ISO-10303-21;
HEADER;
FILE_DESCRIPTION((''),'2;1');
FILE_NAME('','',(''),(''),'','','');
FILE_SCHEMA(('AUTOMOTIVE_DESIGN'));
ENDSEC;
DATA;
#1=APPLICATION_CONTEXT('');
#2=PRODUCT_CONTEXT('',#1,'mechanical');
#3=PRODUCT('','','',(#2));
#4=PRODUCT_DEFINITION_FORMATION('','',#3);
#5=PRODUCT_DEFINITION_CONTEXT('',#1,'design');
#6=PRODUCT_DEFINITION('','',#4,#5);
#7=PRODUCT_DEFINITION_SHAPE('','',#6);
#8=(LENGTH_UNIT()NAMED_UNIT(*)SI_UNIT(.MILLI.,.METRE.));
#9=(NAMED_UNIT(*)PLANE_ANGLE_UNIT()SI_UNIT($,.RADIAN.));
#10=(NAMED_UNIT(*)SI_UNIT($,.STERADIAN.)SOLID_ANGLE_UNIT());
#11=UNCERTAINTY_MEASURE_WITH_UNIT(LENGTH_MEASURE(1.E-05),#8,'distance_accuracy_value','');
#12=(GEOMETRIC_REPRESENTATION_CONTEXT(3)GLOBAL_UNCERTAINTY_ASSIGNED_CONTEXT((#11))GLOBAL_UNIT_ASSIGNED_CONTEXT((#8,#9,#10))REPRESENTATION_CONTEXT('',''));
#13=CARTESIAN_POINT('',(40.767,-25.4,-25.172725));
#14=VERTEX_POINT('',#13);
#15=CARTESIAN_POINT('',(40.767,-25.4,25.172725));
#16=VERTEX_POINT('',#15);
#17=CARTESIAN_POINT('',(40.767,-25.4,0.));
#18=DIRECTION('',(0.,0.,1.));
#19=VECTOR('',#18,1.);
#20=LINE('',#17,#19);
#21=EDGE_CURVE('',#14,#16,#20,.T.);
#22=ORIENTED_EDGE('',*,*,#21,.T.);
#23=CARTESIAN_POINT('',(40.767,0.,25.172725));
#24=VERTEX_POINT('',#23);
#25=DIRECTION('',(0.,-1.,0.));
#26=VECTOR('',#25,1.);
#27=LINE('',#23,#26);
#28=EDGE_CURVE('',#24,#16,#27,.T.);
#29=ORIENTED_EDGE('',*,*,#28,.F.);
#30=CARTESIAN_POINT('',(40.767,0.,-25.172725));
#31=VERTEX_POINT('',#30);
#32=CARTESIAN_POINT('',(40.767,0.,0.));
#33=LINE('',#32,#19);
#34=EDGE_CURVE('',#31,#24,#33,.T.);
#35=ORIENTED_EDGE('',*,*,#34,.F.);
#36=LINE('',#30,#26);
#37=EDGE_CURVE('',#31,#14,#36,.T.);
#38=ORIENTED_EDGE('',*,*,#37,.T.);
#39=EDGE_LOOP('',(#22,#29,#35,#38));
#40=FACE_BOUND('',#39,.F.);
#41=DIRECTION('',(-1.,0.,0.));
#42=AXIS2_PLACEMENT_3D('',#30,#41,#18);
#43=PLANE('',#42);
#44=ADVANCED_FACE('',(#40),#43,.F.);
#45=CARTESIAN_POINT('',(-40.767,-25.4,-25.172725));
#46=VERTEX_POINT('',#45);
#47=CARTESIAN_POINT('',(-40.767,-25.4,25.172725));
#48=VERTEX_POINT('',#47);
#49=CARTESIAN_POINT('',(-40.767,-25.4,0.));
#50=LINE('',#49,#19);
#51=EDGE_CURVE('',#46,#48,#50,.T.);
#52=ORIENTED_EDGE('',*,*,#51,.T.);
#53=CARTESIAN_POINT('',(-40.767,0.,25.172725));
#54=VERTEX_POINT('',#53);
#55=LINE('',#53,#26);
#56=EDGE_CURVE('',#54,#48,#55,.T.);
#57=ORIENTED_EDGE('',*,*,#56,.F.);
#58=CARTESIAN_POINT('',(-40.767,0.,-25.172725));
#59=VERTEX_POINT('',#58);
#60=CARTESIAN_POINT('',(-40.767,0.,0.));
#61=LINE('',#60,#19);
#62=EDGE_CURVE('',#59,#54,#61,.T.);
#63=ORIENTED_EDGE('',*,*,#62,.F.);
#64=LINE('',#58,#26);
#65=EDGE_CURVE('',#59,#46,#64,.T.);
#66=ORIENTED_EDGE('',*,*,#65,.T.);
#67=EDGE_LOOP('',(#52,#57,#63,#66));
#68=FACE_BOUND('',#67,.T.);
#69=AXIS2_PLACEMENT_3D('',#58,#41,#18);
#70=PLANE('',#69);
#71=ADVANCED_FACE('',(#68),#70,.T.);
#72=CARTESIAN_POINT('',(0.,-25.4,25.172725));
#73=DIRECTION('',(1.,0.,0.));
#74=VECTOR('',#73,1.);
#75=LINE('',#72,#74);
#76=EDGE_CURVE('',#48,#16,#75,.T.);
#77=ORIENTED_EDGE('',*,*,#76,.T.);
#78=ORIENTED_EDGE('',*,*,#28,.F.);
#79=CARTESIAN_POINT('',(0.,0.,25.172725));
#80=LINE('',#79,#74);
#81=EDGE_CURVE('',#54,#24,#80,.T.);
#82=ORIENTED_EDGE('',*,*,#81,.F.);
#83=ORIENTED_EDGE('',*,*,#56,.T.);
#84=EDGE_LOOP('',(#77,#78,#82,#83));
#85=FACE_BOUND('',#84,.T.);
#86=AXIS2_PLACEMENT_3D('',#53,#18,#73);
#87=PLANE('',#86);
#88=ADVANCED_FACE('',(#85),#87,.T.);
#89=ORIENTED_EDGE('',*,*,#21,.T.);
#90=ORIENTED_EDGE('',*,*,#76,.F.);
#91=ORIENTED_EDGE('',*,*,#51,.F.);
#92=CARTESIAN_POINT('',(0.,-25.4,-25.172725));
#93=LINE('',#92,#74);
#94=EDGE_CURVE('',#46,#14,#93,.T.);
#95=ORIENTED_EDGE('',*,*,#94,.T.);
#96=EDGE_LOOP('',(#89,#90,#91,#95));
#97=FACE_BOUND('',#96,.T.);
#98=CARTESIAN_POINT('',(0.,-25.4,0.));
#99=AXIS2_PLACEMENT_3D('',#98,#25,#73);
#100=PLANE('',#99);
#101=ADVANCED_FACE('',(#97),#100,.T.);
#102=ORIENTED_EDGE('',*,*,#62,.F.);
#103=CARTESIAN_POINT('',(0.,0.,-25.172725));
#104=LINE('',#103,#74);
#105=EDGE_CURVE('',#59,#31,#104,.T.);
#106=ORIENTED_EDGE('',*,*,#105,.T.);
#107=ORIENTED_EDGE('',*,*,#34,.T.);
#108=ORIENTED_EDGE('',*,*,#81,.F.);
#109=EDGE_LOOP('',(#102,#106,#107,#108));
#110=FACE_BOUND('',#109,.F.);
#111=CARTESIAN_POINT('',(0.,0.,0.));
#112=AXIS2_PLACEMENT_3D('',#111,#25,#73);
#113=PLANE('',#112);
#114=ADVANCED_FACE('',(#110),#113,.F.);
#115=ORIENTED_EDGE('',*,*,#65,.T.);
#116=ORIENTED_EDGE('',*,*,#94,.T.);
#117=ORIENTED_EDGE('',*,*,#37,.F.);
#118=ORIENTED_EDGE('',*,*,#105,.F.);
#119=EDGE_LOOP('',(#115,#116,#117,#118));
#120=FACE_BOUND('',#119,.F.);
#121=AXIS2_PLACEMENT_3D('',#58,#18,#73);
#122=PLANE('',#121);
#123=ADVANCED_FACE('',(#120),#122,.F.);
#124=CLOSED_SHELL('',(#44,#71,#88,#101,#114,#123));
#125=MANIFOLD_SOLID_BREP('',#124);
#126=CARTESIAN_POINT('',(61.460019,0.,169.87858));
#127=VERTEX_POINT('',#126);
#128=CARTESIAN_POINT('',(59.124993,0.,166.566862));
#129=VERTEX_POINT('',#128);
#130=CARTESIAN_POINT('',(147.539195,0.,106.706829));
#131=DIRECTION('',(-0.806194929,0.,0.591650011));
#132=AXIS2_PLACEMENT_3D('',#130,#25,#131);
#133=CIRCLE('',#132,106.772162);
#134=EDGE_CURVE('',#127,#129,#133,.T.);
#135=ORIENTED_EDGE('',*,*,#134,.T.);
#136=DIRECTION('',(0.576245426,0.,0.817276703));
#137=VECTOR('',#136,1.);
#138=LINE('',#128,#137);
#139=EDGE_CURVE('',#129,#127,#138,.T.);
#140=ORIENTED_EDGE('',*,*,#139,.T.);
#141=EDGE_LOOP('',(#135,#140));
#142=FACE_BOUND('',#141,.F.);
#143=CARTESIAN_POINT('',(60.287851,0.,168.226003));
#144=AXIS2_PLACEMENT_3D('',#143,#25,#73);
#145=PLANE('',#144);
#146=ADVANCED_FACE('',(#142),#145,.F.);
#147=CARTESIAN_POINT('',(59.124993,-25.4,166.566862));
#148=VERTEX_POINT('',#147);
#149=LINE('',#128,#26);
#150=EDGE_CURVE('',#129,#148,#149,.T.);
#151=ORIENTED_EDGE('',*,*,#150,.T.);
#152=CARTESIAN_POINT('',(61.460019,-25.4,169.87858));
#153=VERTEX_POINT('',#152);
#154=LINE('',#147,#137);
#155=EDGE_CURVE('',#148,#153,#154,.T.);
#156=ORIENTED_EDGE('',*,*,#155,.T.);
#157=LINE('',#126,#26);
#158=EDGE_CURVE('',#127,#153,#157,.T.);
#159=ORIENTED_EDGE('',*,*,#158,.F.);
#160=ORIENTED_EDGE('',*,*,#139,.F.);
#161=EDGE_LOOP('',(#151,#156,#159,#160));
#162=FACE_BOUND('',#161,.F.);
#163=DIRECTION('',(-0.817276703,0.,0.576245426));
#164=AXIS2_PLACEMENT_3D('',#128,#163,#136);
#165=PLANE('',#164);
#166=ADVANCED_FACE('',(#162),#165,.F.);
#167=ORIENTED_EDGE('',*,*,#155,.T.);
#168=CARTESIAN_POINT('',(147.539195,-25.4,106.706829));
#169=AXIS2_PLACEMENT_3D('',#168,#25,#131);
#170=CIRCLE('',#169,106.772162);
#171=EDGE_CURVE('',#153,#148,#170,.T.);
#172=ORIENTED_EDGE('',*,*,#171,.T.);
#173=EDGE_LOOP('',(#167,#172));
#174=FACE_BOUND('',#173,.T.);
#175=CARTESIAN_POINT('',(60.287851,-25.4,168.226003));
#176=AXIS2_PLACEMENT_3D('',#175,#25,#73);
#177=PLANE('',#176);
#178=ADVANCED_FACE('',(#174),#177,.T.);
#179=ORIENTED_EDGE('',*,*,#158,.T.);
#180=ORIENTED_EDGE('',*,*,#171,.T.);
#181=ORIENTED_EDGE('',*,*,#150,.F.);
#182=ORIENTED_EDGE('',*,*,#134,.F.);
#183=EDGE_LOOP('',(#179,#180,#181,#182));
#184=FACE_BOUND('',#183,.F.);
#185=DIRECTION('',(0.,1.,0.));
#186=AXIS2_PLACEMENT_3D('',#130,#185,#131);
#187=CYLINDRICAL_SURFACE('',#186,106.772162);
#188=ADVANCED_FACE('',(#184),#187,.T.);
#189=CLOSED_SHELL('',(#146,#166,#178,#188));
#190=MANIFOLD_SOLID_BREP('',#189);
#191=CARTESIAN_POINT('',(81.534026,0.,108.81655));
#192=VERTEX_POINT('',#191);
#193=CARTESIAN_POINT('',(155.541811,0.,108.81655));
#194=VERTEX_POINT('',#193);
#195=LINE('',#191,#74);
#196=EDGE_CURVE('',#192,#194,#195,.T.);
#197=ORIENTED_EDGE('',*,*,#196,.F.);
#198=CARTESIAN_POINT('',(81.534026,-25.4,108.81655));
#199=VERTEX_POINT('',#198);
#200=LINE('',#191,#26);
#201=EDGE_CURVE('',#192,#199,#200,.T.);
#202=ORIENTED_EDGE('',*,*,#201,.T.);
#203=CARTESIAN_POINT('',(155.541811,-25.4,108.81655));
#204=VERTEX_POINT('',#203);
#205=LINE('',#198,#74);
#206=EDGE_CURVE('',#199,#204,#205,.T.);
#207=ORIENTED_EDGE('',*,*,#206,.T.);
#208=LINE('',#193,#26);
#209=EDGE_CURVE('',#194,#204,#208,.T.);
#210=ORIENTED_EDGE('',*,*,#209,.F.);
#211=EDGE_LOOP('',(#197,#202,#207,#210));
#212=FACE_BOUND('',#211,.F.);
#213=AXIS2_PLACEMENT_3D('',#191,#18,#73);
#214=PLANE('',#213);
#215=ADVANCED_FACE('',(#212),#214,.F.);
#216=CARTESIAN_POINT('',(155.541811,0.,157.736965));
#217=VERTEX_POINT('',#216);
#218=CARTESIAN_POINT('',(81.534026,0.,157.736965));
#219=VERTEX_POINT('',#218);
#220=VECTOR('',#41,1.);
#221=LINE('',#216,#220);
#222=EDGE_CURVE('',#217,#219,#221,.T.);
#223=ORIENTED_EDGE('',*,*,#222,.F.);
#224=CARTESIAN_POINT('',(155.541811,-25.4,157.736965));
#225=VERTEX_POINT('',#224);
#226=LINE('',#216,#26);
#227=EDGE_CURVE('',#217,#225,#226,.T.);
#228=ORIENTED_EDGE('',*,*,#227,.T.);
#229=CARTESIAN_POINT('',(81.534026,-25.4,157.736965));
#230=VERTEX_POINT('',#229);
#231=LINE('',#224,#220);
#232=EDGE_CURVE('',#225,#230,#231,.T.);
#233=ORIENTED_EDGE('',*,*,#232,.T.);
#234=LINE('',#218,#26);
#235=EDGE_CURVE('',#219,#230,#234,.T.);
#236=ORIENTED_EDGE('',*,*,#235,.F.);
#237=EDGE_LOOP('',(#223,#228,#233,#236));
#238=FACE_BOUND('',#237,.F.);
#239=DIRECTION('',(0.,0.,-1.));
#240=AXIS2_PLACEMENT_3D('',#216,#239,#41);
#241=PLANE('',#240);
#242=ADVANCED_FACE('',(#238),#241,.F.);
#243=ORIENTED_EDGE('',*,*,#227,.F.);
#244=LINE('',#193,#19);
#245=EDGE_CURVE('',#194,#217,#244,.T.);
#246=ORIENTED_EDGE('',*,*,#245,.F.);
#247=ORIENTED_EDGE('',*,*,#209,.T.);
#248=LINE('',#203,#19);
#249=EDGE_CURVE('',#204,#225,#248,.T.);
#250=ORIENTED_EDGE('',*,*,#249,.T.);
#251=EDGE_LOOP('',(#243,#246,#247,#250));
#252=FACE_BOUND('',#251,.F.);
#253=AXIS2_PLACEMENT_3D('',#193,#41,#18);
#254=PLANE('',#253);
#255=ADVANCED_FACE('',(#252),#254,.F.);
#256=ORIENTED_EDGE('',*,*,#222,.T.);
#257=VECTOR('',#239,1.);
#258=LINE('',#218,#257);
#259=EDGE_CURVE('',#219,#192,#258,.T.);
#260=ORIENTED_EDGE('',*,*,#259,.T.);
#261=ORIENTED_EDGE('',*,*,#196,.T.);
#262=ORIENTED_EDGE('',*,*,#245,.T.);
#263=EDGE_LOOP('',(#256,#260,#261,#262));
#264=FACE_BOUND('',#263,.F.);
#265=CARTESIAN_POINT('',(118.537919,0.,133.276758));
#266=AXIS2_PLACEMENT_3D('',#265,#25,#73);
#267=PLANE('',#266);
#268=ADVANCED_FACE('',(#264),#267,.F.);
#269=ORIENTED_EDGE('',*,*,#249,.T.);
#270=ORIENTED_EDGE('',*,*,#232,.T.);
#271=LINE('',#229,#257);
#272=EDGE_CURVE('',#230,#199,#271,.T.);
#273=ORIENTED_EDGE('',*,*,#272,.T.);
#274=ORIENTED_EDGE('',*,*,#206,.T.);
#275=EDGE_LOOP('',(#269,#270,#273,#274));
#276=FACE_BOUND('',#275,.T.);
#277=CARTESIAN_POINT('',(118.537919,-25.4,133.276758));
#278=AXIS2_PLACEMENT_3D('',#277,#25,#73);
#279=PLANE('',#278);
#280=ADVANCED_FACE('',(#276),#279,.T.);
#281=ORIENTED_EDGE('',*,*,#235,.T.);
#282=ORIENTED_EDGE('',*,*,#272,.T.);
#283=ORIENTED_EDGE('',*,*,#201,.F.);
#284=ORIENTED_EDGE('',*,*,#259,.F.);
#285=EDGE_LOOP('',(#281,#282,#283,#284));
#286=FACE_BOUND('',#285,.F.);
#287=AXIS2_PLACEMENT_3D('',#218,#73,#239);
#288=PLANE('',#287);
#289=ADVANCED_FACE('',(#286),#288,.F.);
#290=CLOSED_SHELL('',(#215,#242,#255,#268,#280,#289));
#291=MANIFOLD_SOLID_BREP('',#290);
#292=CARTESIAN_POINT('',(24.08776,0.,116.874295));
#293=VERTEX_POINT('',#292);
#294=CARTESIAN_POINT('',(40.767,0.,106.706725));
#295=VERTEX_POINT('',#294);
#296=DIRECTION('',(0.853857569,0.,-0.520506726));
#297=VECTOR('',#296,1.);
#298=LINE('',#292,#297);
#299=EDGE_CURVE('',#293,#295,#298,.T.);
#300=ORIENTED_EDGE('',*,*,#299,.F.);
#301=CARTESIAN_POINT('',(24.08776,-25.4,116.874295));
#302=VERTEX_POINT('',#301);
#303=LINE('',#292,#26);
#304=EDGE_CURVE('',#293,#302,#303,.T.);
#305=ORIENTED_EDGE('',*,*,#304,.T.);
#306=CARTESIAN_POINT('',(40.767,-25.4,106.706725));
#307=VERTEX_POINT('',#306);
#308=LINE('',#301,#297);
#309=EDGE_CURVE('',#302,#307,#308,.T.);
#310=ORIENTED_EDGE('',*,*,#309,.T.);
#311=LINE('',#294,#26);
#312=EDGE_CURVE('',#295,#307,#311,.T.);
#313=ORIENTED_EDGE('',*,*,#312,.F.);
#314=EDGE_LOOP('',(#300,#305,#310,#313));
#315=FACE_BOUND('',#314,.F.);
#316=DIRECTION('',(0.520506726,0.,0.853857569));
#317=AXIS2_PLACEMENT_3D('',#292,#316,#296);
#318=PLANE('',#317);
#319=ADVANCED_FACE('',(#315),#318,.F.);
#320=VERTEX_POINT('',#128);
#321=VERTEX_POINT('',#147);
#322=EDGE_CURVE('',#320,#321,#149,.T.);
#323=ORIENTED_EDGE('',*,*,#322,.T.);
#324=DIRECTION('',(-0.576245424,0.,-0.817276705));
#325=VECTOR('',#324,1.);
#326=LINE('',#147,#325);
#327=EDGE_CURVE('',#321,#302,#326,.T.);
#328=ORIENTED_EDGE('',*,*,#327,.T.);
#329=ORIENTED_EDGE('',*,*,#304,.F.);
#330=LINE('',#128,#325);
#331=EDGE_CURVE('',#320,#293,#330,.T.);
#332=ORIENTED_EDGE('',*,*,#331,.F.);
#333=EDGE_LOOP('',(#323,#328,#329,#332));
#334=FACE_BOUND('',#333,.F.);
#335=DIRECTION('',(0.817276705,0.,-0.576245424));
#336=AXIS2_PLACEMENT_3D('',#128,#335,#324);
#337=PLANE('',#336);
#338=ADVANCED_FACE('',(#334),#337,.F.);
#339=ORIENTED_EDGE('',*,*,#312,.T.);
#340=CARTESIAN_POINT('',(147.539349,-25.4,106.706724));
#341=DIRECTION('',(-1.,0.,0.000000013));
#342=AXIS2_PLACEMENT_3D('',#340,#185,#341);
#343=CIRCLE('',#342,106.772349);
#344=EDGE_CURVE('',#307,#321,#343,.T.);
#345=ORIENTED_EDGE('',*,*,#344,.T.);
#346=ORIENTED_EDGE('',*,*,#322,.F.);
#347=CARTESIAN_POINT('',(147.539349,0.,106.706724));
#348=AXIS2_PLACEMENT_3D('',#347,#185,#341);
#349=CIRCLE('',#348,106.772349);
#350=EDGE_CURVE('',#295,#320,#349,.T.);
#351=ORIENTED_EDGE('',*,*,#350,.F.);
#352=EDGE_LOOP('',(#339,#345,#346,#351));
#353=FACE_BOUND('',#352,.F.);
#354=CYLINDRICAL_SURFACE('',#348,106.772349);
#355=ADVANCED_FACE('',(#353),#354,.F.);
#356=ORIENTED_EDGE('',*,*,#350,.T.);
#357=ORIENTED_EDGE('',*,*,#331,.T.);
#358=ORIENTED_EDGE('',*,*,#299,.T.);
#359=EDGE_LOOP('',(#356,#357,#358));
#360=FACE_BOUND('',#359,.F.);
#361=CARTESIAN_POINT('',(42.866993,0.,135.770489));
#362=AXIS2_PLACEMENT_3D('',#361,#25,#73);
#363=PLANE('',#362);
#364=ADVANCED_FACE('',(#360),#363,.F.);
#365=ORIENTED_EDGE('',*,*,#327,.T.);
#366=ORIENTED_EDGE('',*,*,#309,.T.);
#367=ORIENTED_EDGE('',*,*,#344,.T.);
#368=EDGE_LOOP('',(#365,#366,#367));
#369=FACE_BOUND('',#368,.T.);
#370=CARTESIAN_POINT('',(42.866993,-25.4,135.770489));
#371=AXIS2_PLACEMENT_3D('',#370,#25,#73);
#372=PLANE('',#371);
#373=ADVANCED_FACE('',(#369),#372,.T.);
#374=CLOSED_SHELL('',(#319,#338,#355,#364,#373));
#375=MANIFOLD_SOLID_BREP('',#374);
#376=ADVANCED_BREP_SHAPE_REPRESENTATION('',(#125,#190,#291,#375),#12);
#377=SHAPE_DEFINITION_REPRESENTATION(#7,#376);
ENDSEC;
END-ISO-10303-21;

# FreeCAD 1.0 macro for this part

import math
import FreeCAD as App
import Part
import Sketcher
Q = App.Units.Quantity


def add_polygon(sketch, points):
    """Adds a closed chain of lines whose ends are joined by coincident constraints."""
    first, n = sketch.GeometryCount, len(points)
    for a, b in zip(points, points[1:] + points[:1]):
        sketch.addGeometry(Part.LineSegment(App.Vector(*a, 0), App.Vector(*b, 0)), False)
    for i in range(n):
        sketch.addConstraint(Sketcher.Constraint("Coincident", first + i, 2, first + (i + 1) % n, 1))

doc = App.newDocument("Part")
body = doc.addObject("PartDesign::Body", "Body")
body.AllowCompound = True

# Sketch on XZ plane
sketch1 = doc.addObject("Sketcher::SketchObject", "Sketch")
body.addObject(sketch1)
sketch1.AttachmentSupport = (doc.XZ_Plane, [""])
sketch1.MapMode = "FlatFace"
add_polygon(sketch1, [(155.5, 157.7), (81.5, 157.7), (81.5, 108.8), (155.5, 108.8)])  # lines 0-3
sketch1.addGeometry(Part.ArcOfCircle(Part.Circle(App.Vector(147.5, 106.7, 0), App.Vector(0, 0, 1), 106.8), math.radians(143.73), math.radians(145.9)), False)  # 4
sketch1.addGeometry(Part.LineSegment(App.Vector(59.1, 166.6, 0), App.Vector(61.5, 169.9, 0)), False)  # 5
sketch1.addGeometry(Part.LineSegment(App.Vector(24.1, 116.9, 0), App.Vector(40.8, 106.7, 0)), False)  # 6
sketch1.addGeometry(Part.ArcOfCircle(Part.Circle(App.Vector(147.5, 106.7, 0), App.Vector(0, 0, 1), 106.8), math.radians(146), math.radians(180)), False)  # 7
sketch1.addGeometry(Part.LineSegment(App.Vector(59.1, 166.6, 0), App.Vector(24.1, 116.9, 0)), False)  # 8
add_polygon(sketch1, [(-40.8, 25.2), (-40.8, -25.2), (40.8, -25.2), (40.8, 25.2)])  # lines 9-12
sketch1.addConstraint(Sketcher.Constraint("Coincident", 4, 1, 5, 2))
sketch1.addConstraint(Sketcher.Constraint("Coincident", 5, 1, 4, 2))
sketch1.addConstraint(Sketcher.Constraint("Coincident", 6, 2, 7, 2))
sketch1.addConstraint(Sketcher.Constraint("Coincident", 7, 1, 8, 1))
sketch1.addConstraint(Sketcher.Constraint("Coincident", 8, 2, 6, 1))
sketch1.addConstraint(Sketcher.Constraint("Horizontal", 0))
sketch1.addConstraint(Sketcher.Constraint("Vertical", 1))
sketch1.addConstraint(Sketcher.Constraint("Horizontal", 2))
sketch1.addConstraint(Sketcher.Constraint("Vertical", 3))
sketch1.addConstraint(Sketcher.Constraint("Vertical", 9))
sketch1.addConstraint(Sketcher.Constraint("Horizontal", 10))
sketch1.addConstraint(Sketcher.Constraint("Vertical", 11))
sketch1.addConstraint(Sketcher.Constraint("Horizontal", 12))
sketch1.addConstraint(Sketcher.Constraint("Coincident", 7, 1, 5, 1))
sketch1.addConstraint(Sketcher.Constraint("Symmetric", 9, 2, 11, 2, -1, 1))
sketch1.addConstraint(Sketcher.Constraint("Parallel", 5, 8))
sketch1.addConstraint(Sketcher.Constraint("Horizontal", 7, 3, 6, 2))
sketch1.addConstraint(Sketcher.Constraint("Vertical", 6, 2, 10, 2))
sketch1.addConstraint(Sketcher.Constraint("DistanceX", 10, 1, 10, 2, Q("3.21 in")))
sketch1.addConstraint(Sketcher.Constraint("DistanceY", 11, 2, 6, 2, Q("3.21 in")))
sketch1.addConstraint(Sketcher.Constraint("Radius", 7, Q("106.772349 mm")))
sketch1.addConstraint(Sketcher.Constraint("Radius", 4, Q("106.772162 mm")))
sketch1.addConstraint(Sketcher.Constraint("DistanceY", 9, 2, 9, 1, Q("50.34545 mm")))
sketch1.addConstraint(Sketcher.Constraint("DistanceX", 5, 1, 4, 3, Q("88.414202 mm")))
sketch1.addConstraint(Sketcher.Constraint("Distance", 5, Q("4.052138 mm")))
sketch1.addConstraint(Sketcher.Constraint("DistanceX", 0, 2, 0, 1, Q("74.007785 mm")))
sketch1.addConstraint(Sketcher.Constraint("DistanceY", 1, 2, 1, 1, Q("48.920415 mm")))
sketch1.addConstraint(Sketcher.Constraint("DistanceY", -1, 1, 4, 3, Q("106.706829 mm")))
sketch1.addConstraint(Sketcher.Constraint("DistanceY", -1, 1, 1, 2, Q("108.81655 mm")))
sketch1.addConstraint(Sketcher.Constraint("DistanceX", -1, 1, 2, 2, Q("155.541811 mm")))
sketch1.addConstraint(Sketcher.Constraint("DistanceX", -1, 1, 8, 2, Q("24.08776 mm")))
pad1 = doc.addObject("PartDesign::Pad", "Pad")
body.addObject(pad1)
pad1.Profile = sketch1
pad1.Length = Q("1 in")

doc.recompute()
